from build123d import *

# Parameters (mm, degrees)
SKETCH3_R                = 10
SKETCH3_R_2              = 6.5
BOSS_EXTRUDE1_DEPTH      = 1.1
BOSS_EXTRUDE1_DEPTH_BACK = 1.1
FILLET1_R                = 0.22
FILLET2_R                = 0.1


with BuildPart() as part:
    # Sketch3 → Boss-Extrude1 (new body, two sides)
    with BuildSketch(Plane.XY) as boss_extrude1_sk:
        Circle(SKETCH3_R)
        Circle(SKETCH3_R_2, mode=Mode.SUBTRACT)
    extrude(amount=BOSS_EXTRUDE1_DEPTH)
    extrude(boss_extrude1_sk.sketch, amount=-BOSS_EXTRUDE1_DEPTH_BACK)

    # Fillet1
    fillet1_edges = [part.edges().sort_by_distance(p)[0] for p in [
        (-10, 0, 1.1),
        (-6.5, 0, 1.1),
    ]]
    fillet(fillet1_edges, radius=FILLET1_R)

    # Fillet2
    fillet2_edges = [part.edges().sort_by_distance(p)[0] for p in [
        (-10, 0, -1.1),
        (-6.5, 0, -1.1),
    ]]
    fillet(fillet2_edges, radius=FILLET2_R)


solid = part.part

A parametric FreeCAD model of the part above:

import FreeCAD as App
import Part
import Sketcher

V = App.Vector
Q = App.Units.Quantity


def edges_at(feature, points):
    """Names of the edges that pass closest to the given points."""
    edges = feature.Shape.Edges
    near = lambda p: min(range(len(edges)), key=lambda i: edges[i].distToShape(Part.Vertex(*p))[0])
    return sorted({f"Edge{near(p) + 1}" for p in points})

doc = App.newDocument("Part")
body = doc.addObject("PartDesign::Body", "Body")

# Sketch on XY plane
sketch1 = body.newObject("Sketcher::SketchObject", "Sketch")
sketch1.AttachmentSupport = (doc.getObject("XY_Plane"), [""])
sketch1.MapMode = "FlatFace"
sketch1.addGeometry([
    Part.Circle(V(0, 0, 0), V(0, 0, 1), 10),
    Part.Circle(V(0, 0, 0), V(0, 0, 1), 6),
], False)
sketch1.addConstraint([
    Sketcher.Constraint("Coincident", 0, 3, -1, 1),
    Sketcher.Constraint("Coincident", 1, 3, -1, 1),
    Sketcher.Constraint("Diameter", 0, Q("20 mm")),
    Sketcher.Constraint("Diameter", 1, Q("13 mm")),
])
pad1 = body.newObject("PartDesign::Pad", "Pad")
pad1.Profile = sketch1
pad1.Type = "TwoLengths"
pad1.Length = 1.1
pad1.Length2 = 1.1
doc.recompute()

fillet = body.newObject("PartDesign::Fillet", "Fillet")
fillet.Base = (pad1, edges_at(pad1, [(-10, 0, 1.1), (-6.5, 0, 1.1)]))
fillet.Radius = 0.22
doc.recompute()

fillet2 = body.newObject("PartDesign::Fillet", "Fillet001")
fillet2.Base = (fillet, edges_at(fillet, [(-10, 0, -1.1), (-6.5, 0, -1.1)]))
fillet2.Radius = 0.1

doc.recompute()
